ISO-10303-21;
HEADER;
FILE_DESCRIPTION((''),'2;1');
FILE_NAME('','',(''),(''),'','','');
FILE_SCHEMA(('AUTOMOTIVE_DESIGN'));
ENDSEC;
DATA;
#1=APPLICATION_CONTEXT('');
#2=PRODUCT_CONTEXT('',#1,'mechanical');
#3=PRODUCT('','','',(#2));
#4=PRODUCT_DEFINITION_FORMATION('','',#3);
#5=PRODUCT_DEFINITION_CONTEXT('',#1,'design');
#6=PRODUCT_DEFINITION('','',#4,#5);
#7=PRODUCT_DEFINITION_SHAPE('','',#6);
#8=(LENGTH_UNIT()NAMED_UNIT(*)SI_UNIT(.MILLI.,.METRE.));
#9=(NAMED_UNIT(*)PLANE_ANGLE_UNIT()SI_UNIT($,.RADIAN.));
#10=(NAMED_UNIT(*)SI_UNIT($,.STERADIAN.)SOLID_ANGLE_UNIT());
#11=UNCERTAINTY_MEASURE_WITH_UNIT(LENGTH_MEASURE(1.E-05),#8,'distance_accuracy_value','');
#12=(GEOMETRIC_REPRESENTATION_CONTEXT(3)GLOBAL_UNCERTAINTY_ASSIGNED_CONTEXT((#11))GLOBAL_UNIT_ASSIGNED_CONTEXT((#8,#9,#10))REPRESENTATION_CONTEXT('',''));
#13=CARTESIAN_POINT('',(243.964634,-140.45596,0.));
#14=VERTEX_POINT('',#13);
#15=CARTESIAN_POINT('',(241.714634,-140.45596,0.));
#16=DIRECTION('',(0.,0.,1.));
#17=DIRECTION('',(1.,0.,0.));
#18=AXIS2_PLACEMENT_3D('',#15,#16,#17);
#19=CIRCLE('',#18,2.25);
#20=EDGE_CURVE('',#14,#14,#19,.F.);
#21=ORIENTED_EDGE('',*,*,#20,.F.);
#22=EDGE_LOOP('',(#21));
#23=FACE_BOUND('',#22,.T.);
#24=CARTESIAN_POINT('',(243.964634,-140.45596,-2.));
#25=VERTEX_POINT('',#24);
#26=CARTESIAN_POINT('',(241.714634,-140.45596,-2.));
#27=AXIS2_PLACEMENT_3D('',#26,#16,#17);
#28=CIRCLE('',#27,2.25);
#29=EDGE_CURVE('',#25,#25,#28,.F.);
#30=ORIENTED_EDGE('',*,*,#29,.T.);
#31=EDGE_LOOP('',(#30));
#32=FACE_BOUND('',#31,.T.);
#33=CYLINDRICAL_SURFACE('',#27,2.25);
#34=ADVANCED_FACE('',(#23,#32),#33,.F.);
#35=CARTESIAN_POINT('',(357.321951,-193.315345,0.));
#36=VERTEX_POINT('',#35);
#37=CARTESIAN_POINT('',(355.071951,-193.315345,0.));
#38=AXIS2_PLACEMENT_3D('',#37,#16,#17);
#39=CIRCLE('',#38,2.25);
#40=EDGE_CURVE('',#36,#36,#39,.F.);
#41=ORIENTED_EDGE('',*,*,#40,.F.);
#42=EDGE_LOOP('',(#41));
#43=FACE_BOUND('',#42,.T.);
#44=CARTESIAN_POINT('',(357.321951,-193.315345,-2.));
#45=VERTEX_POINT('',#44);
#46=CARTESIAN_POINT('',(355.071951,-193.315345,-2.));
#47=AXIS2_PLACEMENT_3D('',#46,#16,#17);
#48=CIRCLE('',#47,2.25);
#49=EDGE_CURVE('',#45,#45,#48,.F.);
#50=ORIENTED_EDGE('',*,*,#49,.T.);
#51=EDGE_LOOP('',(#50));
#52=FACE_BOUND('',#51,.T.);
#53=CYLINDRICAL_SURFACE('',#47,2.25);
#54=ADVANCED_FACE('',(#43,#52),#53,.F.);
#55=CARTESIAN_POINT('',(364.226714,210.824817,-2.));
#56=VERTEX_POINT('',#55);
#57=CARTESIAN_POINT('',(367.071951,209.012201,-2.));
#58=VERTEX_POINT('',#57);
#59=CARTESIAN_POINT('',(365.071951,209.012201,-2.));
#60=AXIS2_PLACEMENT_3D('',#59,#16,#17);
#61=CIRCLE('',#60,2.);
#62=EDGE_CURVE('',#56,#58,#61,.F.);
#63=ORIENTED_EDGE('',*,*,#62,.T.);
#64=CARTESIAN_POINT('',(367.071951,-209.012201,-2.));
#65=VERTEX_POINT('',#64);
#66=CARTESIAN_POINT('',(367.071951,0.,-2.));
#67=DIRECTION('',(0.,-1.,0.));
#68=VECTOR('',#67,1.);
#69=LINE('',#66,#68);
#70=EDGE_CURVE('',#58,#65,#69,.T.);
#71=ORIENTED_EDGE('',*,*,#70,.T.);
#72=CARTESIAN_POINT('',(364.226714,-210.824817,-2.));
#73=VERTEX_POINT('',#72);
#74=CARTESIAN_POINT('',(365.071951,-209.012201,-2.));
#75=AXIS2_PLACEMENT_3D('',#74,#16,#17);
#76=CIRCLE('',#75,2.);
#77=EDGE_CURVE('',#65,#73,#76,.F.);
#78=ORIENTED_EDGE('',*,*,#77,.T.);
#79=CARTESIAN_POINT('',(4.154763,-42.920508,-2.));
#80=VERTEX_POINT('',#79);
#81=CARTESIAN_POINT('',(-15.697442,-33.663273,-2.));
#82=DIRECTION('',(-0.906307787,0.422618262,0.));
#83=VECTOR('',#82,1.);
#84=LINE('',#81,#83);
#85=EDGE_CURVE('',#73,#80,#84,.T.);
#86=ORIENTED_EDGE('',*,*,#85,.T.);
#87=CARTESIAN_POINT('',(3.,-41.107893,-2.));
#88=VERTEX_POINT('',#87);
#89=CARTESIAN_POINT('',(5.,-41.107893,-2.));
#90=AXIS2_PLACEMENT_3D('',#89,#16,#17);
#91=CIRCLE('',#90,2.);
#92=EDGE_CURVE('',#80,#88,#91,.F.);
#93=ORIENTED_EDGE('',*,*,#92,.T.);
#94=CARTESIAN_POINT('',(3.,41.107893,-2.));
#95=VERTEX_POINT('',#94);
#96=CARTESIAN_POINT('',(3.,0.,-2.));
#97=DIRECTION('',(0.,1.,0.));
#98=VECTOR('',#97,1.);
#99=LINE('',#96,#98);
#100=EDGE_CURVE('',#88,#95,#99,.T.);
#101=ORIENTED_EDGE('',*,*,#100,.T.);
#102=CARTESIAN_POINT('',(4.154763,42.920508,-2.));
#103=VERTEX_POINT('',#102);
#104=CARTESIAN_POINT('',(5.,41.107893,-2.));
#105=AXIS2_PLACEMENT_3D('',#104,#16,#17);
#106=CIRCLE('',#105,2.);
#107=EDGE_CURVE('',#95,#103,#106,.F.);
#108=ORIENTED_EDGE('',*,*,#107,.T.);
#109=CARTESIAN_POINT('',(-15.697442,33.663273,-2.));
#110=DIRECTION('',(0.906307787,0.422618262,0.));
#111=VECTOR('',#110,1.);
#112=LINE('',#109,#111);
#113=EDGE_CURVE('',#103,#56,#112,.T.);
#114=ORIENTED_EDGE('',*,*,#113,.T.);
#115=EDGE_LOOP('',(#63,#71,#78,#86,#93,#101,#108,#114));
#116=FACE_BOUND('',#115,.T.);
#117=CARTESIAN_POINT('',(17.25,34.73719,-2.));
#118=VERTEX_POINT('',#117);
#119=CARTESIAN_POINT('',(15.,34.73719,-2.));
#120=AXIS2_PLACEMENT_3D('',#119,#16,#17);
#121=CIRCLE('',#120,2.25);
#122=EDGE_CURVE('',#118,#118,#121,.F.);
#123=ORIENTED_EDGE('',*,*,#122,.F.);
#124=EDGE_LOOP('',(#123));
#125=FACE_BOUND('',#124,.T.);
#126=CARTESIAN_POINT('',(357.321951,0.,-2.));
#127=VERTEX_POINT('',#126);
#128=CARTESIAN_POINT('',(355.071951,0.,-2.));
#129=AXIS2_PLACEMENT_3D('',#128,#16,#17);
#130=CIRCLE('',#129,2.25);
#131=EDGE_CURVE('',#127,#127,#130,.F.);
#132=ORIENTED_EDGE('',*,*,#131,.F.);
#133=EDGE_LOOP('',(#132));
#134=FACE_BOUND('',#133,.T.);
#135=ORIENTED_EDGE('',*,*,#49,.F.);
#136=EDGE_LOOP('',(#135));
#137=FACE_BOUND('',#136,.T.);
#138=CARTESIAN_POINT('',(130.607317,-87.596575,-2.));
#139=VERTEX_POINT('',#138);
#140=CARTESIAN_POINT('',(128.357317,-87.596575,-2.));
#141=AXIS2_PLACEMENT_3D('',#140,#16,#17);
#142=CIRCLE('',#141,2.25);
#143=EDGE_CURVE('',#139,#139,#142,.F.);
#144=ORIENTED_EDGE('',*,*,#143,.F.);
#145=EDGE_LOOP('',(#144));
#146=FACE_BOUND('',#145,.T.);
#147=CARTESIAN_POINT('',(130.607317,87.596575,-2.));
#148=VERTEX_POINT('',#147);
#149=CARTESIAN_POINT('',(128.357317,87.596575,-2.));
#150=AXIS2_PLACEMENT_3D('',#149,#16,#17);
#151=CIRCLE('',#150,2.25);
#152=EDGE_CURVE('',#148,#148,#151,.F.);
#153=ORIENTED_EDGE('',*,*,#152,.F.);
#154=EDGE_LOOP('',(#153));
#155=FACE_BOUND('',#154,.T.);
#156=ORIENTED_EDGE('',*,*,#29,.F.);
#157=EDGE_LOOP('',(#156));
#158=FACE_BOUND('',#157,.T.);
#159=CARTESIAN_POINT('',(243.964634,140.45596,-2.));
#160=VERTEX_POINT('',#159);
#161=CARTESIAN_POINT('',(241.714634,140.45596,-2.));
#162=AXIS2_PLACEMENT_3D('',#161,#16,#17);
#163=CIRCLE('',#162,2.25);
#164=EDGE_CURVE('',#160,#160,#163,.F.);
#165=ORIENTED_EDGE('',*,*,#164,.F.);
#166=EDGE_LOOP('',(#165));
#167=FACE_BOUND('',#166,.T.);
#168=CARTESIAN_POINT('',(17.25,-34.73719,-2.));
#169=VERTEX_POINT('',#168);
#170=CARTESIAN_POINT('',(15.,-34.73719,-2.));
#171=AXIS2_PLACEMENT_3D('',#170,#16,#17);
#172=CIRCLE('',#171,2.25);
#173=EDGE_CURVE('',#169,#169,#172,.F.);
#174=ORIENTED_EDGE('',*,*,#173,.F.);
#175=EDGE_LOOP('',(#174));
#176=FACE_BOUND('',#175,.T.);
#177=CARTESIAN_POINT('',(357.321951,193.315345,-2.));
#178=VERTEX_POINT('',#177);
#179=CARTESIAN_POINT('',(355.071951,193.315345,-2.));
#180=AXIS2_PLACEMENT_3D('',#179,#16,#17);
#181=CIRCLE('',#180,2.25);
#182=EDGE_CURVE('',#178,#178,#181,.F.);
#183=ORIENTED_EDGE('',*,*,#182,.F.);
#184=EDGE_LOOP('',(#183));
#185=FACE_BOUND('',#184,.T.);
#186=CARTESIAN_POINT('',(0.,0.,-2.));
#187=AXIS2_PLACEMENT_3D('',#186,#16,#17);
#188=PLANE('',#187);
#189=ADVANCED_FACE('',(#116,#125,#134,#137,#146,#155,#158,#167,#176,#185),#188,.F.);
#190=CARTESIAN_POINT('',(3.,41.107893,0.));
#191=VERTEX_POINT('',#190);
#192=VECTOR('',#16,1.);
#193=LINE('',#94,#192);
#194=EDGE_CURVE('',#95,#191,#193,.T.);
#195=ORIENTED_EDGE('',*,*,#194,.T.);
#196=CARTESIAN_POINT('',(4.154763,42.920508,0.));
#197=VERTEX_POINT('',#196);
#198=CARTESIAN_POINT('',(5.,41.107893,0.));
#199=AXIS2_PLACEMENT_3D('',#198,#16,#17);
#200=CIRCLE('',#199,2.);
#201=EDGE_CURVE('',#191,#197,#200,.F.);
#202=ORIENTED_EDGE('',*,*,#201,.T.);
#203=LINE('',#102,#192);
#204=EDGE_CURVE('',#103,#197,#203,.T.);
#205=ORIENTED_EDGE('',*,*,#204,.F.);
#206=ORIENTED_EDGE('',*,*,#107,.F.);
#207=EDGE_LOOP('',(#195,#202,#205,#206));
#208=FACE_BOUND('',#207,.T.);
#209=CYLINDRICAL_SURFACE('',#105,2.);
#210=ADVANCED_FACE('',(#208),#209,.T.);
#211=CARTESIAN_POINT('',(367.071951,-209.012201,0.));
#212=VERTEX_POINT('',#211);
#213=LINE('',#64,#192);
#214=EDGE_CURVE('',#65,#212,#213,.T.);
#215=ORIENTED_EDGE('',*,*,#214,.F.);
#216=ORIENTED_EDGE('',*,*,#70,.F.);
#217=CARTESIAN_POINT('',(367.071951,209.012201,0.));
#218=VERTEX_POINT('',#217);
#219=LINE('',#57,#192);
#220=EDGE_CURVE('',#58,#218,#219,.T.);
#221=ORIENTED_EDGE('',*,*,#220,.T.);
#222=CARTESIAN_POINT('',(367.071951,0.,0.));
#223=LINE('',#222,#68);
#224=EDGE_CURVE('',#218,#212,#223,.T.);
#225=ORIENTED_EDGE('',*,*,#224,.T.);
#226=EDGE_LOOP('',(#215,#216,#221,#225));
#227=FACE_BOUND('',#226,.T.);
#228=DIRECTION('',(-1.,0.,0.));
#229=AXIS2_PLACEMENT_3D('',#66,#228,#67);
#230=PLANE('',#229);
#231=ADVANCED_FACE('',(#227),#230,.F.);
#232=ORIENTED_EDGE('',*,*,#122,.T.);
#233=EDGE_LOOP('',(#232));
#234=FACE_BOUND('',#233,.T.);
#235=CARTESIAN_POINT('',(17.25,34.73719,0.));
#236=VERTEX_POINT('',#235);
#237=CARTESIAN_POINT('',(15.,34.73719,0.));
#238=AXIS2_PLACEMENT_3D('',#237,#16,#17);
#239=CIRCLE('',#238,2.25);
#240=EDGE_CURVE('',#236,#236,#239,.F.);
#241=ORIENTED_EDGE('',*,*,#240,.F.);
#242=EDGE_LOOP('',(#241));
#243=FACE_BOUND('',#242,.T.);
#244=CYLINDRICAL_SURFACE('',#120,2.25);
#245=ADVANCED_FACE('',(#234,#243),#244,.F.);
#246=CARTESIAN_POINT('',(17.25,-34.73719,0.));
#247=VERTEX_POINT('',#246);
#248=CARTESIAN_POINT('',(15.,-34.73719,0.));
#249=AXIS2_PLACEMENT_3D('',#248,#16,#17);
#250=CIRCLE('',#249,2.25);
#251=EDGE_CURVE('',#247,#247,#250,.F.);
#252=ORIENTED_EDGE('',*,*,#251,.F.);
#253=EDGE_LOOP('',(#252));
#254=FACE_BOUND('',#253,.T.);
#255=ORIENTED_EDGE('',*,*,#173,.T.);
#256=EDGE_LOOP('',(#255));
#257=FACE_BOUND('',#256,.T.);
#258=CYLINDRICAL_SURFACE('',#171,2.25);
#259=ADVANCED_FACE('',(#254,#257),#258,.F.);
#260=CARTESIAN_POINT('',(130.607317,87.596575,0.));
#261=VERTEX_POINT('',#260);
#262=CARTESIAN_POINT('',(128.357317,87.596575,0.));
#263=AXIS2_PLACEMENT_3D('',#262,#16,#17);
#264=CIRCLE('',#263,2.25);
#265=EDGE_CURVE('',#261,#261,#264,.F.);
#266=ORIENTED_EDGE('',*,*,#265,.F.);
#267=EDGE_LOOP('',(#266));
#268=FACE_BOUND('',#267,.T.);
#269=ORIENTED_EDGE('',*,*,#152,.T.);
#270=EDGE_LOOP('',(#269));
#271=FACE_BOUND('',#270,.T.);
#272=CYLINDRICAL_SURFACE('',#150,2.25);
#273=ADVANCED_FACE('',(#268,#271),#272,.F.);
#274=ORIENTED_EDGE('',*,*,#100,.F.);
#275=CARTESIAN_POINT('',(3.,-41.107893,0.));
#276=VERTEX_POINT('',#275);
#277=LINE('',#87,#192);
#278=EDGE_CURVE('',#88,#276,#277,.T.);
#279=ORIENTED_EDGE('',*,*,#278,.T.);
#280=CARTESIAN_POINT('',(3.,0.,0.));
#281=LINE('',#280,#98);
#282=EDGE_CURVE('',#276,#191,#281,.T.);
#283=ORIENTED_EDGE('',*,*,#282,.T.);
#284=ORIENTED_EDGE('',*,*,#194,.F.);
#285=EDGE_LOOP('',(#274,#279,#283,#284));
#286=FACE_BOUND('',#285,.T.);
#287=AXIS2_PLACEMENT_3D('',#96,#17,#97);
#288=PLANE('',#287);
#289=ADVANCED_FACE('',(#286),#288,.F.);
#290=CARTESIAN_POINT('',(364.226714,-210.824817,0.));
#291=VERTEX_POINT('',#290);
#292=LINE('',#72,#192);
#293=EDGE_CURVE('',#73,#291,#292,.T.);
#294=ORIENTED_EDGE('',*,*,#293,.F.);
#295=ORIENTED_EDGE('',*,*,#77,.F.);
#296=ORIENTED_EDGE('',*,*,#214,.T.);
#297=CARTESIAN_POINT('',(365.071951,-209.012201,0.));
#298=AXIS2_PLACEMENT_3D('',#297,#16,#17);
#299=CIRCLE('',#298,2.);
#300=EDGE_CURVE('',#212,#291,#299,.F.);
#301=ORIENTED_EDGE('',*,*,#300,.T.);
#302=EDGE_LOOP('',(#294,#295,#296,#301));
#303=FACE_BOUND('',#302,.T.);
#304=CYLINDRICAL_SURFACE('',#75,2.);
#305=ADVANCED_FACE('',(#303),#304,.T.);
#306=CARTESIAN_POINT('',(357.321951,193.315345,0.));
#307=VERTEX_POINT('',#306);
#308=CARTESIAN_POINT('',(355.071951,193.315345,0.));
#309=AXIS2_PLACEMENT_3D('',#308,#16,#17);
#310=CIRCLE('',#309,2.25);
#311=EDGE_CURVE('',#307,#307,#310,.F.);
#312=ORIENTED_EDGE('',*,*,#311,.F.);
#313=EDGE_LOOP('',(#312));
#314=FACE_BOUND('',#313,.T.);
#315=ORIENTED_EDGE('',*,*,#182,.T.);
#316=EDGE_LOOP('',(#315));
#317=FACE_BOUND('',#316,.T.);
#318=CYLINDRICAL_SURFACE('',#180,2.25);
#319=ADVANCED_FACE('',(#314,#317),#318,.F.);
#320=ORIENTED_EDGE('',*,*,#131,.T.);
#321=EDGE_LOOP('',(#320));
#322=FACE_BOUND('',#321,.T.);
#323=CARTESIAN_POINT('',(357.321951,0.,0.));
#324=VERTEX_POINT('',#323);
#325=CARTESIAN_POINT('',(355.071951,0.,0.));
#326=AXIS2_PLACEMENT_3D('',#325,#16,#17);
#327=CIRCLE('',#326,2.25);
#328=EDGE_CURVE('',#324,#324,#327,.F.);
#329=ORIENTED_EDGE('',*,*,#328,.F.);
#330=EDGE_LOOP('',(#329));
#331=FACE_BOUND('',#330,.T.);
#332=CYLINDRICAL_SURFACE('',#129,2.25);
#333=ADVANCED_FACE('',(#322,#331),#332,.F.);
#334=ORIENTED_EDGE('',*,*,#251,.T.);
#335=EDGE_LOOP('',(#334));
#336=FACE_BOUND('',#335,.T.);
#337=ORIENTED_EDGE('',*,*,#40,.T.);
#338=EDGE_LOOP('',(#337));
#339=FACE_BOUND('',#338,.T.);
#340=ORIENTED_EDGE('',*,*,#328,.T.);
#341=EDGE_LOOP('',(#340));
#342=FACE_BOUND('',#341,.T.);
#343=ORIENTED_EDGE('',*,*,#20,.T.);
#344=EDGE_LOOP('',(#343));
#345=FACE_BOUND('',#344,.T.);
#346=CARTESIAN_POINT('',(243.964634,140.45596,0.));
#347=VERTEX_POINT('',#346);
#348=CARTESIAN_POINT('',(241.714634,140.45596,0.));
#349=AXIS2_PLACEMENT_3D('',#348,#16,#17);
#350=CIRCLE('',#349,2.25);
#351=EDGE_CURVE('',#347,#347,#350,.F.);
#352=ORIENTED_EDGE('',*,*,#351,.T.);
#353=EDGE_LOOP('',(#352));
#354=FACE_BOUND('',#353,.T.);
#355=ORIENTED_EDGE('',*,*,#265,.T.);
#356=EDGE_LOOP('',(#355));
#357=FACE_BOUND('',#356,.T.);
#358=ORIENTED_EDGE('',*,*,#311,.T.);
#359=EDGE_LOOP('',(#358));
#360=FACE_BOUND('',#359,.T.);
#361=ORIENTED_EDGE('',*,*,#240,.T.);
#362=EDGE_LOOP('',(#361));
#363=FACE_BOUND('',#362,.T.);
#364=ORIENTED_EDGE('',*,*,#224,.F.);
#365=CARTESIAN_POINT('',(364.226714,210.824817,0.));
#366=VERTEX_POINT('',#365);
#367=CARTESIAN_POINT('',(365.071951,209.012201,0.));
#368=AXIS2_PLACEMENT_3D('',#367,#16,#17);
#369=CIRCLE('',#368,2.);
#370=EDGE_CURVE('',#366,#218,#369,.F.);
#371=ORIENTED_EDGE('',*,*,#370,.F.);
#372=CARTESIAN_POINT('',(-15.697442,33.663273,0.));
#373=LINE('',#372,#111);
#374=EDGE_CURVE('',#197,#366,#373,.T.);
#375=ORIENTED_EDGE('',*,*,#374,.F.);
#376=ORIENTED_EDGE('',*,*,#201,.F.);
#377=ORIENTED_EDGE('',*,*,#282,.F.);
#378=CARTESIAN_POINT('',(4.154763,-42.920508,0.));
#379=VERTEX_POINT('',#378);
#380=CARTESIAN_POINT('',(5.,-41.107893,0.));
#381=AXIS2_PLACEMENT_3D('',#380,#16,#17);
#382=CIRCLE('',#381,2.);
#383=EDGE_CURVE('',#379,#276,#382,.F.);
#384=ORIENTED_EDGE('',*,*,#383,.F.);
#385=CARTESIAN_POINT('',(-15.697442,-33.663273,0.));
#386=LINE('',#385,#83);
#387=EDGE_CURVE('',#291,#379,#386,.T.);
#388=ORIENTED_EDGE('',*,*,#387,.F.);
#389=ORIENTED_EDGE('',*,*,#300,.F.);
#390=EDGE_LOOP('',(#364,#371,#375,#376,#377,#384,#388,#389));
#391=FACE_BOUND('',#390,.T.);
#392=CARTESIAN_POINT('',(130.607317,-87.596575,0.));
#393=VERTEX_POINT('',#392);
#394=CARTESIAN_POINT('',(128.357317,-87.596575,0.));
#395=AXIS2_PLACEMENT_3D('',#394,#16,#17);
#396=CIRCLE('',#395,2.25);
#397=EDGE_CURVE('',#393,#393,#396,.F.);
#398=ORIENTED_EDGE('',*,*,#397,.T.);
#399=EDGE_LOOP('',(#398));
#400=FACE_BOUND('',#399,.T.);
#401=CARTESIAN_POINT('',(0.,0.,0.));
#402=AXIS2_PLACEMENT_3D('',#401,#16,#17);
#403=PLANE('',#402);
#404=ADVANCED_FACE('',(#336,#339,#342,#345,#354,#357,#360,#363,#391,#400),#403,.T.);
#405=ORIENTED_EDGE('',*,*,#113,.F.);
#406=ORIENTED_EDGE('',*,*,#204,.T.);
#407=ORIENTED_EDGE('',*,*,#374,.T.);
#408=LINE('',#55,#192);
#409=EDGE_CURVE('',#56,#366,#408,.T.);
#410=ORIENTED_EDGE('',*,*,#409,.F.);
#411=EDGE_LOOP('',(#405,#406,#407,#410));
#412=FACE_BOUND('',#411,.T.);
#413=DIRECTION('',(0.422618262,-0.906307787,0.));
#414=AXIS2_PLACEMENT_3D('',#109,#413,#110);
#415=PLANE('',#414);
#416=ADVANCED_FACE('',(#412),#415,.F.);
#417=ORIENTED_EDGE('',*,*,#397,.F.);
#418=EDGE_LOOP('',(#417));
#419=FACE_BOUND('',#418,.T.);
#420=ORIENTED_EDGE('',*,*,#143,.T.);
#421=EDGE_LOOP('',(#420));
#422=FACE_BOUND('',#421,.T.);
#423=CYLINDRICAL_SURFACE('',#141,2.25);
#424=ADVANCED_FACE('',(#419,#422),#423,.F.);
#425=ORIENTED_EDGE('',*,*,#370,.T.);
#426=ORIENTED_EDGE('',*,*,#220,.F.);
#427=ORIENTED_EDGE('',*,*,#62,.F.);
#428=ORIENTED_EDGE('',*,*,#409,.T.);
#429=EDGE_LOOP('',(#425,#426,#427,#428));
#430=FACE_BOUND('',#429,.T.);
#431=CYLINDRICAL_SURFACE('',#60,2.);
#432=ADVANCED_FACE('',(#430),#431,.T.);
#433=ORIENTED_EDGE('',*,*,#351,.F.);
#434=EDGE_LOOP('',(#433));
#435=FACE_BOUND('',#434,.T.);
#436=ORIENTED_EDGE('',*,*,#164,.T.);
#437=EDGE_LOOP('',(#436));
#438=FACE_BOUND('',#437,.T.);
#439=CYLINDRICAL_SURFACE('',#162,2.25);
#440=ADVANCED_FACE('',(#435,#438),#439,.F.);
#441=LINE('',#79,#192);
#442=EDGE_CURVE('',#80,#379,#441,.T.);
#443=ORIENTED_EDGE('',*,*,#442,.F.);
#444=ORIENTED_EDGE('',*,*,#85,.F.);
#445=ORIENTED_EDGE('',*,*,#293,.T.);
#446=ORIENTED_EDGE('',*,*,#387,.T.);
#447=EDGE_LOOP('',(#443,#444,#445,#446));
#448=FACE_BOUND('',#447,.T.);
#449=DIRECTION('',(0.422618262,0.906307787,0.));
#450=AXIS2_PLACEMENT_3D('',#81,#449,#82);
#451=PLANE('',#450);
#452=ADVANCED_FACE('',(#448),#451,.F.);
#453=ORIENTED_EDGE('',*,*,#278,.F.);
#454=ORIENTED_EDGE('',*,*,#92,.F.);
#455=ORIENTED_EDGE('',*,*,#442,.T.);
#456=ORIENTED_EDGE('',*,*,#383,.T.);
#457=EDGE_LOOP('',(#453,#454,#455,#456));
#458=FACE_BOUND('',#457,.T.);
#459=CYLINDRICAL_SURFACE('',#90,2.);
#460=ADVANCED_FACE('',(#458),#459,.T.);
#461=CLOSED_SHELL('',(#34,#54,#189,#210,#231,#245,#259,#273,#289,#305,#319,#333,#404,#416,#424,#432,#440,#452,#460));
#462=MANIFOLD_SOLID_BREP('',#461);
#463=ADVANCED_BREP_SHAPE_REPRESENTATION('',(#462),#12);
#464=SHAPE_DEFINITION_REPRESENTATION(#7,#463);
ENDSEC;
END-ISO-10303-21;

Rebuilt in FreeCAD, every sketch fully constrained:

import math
import FreeCAD as App
import Part
import Sketcher
from FreeCAD import Vector
Q = App.Units.Quantity

doc = App.newDocument("Part")
body = doc.addObject("PartDesign::Body", "Body")

# Sketch on XY plane
sketch1 = doc.addObject("Sketcher::SketchObject", "Sketch")
body.addObject(sketch1)
sketch1.AttachmentSupport = (doc.XY_Plane, [""])
sketch1.MapMode = "FlatFace"
sketch1.addGeometry(Part.LineSegment(Vector(3, -41.1, 0), Vector(3, 41.1, 0)), False)
sketch1.addGeometry(Part.ArcOfCircle(Part.Circle(Vector(5, 41.1, 0), Vector(0, 0, 1), 2), math.radians(115), math.radians(180)), False)
sketch1.addGeometry(Part.LineSegment(Vector(4.2, 42.9, 0), Vector(364.2, 210.8, 0)), False)
sketch1.addGeometry(Part.ArcOfCircle(Part.Circle(Vector(365.1, 209, 0), Vector(0, 0, 1), 2), math.radians(0), math.radians(115)), False)
sketch1.addGeometry(Part.LineSegment(Vector(367.1, 209, 0), Vector(367.1, -209, 0)), False)
sketch1.addGeometry(Part.ArcOfCircle(Part.Circle(Vector(365.1, -209, 0), Vector(0, 0, 1), 2), math.radians(-115), math.radians(0)), False)
sketch1.addGeometry(Part.LineSegment(Vector(364.2, -210.8, 0), Vector(4.2, -42.9, 0)), False)
sketch1.addGeometry(Part.ArcOfCircle(Part.Circle(Vector(5, -41.1, 0), Vector(0, 0, 1), 2), math.radians(180), math.radians(245)), False)
sketch1.addGeometry(Part.Circle(Vector(355.1, -193.3, 0), Vector(0, 0, 1), 2.2), False)
sketch1.addGeometry(Part.Circle(Vector(241.7, -140.5, 0), Vector(0, 0, 1), 2.2), False)
sketch1.addGeometry(Part.Circle(Vector(128.4, -87.6, 0), Vector(0, 0, 1), 2.2), False)
sketch1.addGeometry(Part.Circle(Vector(15, -34.7, 0), Vector(0, 0, 1), 2.2), False)
sketch1.addGeometry(Part.Circle(Vector(355.1, 0, 0), Vector(0, 0, 1), 2.2), False)
sketch1.addGeometry(Part.Circle(Vector(355.1, 193.3, 0), Vector(0, 0, 1), 2.2), False)
sketch1.addGeometry(Part.Circle(Vector(241.7, 140.5, 0), Vector(0, 0, 1), 2.2), False)
sketch1.addGeometry(Part.Circle(Vector(128.4, 87.6, 0), Vector(0, 0, 1), 2.2), False)
sketch1.addGeometry(Part.Circle(Vector(15, 34.7, 0), Vector(0, 0, 1), 2.2), False)
sketch1.addConstraint(Sketcher.Constraint("Tangent", 0, 2, 1, 2))
sketch1.addConstraint(Sketcher.Constraint("Tangent", 1, 1, 2, 1))
sketch1.addConstraint(Sketcher.Constraint("Tangent", 2, 2, 3, 2))
sketch1.addConstraint(Sketcher.Constraint("Tangent", 3, 1, 4, 1))
sketch1.addConstraint(Sketcher.Constraint("Tangent", 4, 2, 5, 2))
sketch1.addConstraint(Sketcher.Constraint("Tangent", 5, 1, 6, 1))
sketch1.addConstraint(Sketcher.Constraint("Tangent", 6, 2, 7, 2))
sketch1.addConstraint(Sketcher.Constraint("Tangent", 7, 1, 0, 1))
sketch1.addConstraint(Sketcher.Constraint("Vertical", 0))
sketch1.addConstraint(Sketcher.Constraint("Vertical", 4))
sketch1.addConstraint(Sketcher.Constraint("Equal", 1, 3))
sketch1.addConstraint(Sketcher.Constraint("Equal", 3, 5))
sketch1.addConstraint(Sketcher.Constraint("Equal", 5, 7))
sketch1.addConstraint(Sketcher.Constraint("Equal", 8, 9))
sketch1.addConstraint(Sketcher.Constraint("Equal", 9, 10))
sketch1.addConstraint(Sketcher.Constraint("Equal", 10, 11))
sketch1.addConstraint(Sketcher.Constraint("Equal", 11, 12))
sketch1.addConstraint(Sketcher.Constraint("Equal", 12, 13))
sketch1.addConstraint(Sketcher.Constraint("Equal", 13, 14))
sketch1.addConstraint(Sketcher.Constraint("Equal", 14, 15))
sketch1.addConstraint(Sketcher.Constraint("Equal", 15, 16))
sketch1.addConstraint(Sketcher.Constraint("Symmetric", 8, 3, 13, 3, -1))
sketch1.addConstraint(Sketcher.Constraint("Symmetric", 9, 3, 14, 3, -1))
sketch1.addConstraint(Sketcher.Constraint("Symmetric", 10, 3, 15, 3, -1))
sketch1.addConstraint(Sketcher.Constraint("Symmetric", 11, 3, 16, 3, -1))
sketch1.addConstraint(Sketcher.Constraint("Symmetric", 2, 2, 5, 1, -1))
sketch1.addConstraint(Sketcher.Constraint("PointOnObject", 12, 3, -1))
sketch1.addConstraint(Sketcher.Constraint("Vertical", 8, 3, 12, 3))
sketch1.addConstraint(Sketcher.Constraint("Radius", 1, Q("2 mm")))
sketch1.addConstraint(Sketcher.Constraint("Diameter", 8, Q("4.5 mm")))
sketch1.addConstraint(Sketcher.Constraint("Angle", 2, Q("25 deg")))
sketch1.addConstraint(Sketcher.Constraint("DistanceX", -1, 1, 1, 3, Q("5 mm")))
sketch1.addConstraint(Sketcher.Constraint("DistanceX", -1, 1, 11, 3, Q("15 mm")))
sketch1.addConstraint(Sketcher.Constraint("DistanceX", 8, 3, 5, 3, Q("10 mm")))
sketch1.addConstraint(Sketcher.Constraint("DistanceY", 4, 2, 4, 1, Q("418.024402 mm")))
sketch1.addConstraint(Sketcher.Constraint("DistanceY", 11, 3, 1, 1, Q("77.657699 mm")))
sketch1.addConstraint(Sketcher.Constraint("DistanceY", 7, 3, 1, 1, Q("84.028401 mm")))
sketch1.addConstraint(Sketcher.Constraint("DistanceY", 9, 3, -1, 1, Q("140.45596 mm")))
sketch1.addConstraint(Sketcher.Constraint("DistanceY", 8, 3, 1, 3, Q("234.423238 mm")))
sketch1.addConstraint(Sketcher.Constraint("DistanceY", 10, 3, 1, 3, Q("128.704468 mm")))
sketch1.addConstraint(Sketcher.Constraint("DistanceX", 14, 3, 2, 2, Q("122.51208 mm")))
sketch1.addConstraint(Sketcher.Constraint("DistanceX", -1, 1, 10, 3, Q("128.357317 mm")))
pad1 = doc.addObject("PartDesign::Pad", "Pad")
body.addObject(pad1)
pad1.Profile = sketch1
pad1.Length = 2
pad1.Reversed = True

doc.recompute()
